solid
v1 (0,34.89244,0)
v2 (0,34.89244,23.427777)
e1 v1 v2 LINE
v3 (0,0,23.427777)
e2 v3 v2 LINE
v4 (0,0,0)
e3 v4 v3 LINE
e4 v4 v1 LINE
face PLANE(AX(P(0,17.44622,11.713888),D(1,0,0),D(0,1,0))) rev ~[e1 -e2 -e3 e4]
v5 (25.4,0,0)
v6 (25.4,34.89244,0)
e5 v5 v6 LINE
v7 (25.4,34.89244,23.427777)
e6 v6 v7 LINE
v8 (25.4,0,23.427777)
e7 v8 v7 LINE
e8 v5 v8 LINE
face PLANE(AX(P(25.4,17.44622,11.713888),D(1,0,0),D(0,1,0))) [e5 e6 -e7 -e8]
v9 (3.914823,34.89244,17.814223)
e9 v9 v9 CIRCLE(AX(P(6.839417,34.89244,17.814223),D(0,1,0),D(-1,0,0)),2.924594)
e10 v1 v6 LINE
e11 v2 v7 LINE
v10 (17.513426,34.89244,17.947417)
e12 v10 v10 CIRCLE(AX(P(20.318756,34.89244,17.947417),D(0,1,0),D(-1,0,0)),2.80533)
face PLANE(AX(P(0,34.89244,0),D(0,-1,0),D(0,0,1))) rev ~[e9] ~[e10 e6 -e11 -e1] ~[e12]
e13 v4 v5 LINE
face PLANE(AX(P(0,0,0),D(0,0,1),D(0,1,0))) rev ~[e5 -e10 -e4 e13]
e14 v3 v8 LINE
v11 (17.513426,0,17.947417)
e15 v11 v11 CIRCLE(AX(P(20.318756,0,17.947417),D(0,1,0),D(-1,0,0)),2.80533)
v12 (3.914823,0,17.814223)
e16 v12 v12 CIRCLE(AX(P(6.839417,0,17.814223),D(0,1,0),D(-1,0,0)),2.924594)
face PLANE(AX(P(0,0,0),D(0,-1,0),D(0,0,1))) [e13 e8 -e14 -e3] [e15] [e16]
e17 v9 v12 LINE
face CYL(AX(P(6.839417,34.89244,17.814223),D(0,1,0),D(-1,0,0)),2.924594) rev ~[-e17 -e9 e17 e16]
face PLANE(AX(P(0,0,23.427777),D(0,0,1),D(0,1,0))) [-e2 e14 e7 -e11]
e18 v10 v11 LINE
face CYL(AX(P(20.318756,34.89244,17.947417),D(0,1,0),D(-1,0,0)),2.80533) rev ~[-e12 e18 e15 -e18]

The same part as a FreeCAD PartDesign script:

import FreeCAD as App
import Part
import Sketcher
Q = App.Units.Quantity

doc = App.newDocument("Part")
body = doc.addObject("PartDesign::Body", "Body")

# Sketch on YZ plane
sketch1 = body.newObject("Sketcher::SketchObject", "Sketch")
sketch1.AttachmentSupport = (doc.getObject("YZ_Plane"), [""])
sketch1.MapMode = "FlatFace"
sketch1.addGeometry([
    Part.LineSegment(App.Vector(0, 23.427777, 0), App.Vector(0, 0, 0)),
    Part.LineSegment(App.Vector(0, 0, 0), App.Vector(34.89244, 0, 0)),
    Part.LineSegment(App.Vector(34.89244, 0, 0), App.Vector(34.89244, 23.427777, 0)),
    Part.LineSegment(App.Vector(34.89244, 23.427777, 0), App.Vector(0, 23.427777, 0)),
], False)
sketch1.addConstraint([
    Sketcher.Constraint("Coincident", 0, 2, 1, 1),
    Sketcher.Constraint("Coincident", 1, 2, 2, 1),
    Sketcher.Constraint("Coincident", 2, 2, 3, 1),
    Sketcher.Constraint("Coincident", 3, 2, 0, 1),
    Sketcher.Constraint("Vertical", 0),
    Sketcher.Constraint("Horizontal", 1),
    Sketcher.Constraint("Vertical", 2),
    Sketcher.Constraint("Horizontal", 3),
    Sketcher.Constraint("Coincident", 0, 2, -1, 1),
    Sketcher.Constraint("DistanceX", 1, 1, 1, 2, 34.89244),
    Sketcher.Constraint("DistanceY", 0, 2, 0, 1, 23.427777),
])
pad1 = body.newObject("PartDesign::Pad", "Pad")
pad1.Profile = sketch1
pad1.Length = Q("1 in")

# Sketch on XZ plane
sketch2 = body.newObject("Sketcher::SketchObject", "Sketch001")
sketch2.AttachmentSupport = (doc.getObject("XZ_Plane"), [""])
sketch2.MapMode = "FlatFace"
sketch2.AttachmentOffset = App.Placement(App.Vector(0, 0, -34.89244), App.Rotation())
sketch2.addGeometry([
    Part.Circle(App.Vector(20.318756, 17.947417, 0), App.Vector(0, 0, 1), 2.80533),
    Part.Circle(App.Vector(6.839417, 17.814223, 0), App.Vector(0, 0, 1), 2.924594),
], False)
sketch2.addConstraint([
    Sketcher.Constraint("Diameter", 0, 5.61066),
    Sketcher.Constraint("Diameter", 1, 5.849188),
    Sketcher.Constraint("DistanceX", 1, 3, 0, 3, 13.479339),
    Sketcher.Constraint("DistanceX", -1, 1, 0, 3, 20.318756),
    Sketcher.Constraint("DistanceY", -1, 1, 0, 3, 17.947417),
    Sketcher.Constraint("DistanceY", -1, 1, 1, 3, 17.814223),
])
pocket1 = body.newObject("PartDesign::Pocket", "Pocket")
pocket1.Profile = sketch2
pocket1.Type = "ThroughAll"
pocket1.Reversed = True

doc.recompute()
